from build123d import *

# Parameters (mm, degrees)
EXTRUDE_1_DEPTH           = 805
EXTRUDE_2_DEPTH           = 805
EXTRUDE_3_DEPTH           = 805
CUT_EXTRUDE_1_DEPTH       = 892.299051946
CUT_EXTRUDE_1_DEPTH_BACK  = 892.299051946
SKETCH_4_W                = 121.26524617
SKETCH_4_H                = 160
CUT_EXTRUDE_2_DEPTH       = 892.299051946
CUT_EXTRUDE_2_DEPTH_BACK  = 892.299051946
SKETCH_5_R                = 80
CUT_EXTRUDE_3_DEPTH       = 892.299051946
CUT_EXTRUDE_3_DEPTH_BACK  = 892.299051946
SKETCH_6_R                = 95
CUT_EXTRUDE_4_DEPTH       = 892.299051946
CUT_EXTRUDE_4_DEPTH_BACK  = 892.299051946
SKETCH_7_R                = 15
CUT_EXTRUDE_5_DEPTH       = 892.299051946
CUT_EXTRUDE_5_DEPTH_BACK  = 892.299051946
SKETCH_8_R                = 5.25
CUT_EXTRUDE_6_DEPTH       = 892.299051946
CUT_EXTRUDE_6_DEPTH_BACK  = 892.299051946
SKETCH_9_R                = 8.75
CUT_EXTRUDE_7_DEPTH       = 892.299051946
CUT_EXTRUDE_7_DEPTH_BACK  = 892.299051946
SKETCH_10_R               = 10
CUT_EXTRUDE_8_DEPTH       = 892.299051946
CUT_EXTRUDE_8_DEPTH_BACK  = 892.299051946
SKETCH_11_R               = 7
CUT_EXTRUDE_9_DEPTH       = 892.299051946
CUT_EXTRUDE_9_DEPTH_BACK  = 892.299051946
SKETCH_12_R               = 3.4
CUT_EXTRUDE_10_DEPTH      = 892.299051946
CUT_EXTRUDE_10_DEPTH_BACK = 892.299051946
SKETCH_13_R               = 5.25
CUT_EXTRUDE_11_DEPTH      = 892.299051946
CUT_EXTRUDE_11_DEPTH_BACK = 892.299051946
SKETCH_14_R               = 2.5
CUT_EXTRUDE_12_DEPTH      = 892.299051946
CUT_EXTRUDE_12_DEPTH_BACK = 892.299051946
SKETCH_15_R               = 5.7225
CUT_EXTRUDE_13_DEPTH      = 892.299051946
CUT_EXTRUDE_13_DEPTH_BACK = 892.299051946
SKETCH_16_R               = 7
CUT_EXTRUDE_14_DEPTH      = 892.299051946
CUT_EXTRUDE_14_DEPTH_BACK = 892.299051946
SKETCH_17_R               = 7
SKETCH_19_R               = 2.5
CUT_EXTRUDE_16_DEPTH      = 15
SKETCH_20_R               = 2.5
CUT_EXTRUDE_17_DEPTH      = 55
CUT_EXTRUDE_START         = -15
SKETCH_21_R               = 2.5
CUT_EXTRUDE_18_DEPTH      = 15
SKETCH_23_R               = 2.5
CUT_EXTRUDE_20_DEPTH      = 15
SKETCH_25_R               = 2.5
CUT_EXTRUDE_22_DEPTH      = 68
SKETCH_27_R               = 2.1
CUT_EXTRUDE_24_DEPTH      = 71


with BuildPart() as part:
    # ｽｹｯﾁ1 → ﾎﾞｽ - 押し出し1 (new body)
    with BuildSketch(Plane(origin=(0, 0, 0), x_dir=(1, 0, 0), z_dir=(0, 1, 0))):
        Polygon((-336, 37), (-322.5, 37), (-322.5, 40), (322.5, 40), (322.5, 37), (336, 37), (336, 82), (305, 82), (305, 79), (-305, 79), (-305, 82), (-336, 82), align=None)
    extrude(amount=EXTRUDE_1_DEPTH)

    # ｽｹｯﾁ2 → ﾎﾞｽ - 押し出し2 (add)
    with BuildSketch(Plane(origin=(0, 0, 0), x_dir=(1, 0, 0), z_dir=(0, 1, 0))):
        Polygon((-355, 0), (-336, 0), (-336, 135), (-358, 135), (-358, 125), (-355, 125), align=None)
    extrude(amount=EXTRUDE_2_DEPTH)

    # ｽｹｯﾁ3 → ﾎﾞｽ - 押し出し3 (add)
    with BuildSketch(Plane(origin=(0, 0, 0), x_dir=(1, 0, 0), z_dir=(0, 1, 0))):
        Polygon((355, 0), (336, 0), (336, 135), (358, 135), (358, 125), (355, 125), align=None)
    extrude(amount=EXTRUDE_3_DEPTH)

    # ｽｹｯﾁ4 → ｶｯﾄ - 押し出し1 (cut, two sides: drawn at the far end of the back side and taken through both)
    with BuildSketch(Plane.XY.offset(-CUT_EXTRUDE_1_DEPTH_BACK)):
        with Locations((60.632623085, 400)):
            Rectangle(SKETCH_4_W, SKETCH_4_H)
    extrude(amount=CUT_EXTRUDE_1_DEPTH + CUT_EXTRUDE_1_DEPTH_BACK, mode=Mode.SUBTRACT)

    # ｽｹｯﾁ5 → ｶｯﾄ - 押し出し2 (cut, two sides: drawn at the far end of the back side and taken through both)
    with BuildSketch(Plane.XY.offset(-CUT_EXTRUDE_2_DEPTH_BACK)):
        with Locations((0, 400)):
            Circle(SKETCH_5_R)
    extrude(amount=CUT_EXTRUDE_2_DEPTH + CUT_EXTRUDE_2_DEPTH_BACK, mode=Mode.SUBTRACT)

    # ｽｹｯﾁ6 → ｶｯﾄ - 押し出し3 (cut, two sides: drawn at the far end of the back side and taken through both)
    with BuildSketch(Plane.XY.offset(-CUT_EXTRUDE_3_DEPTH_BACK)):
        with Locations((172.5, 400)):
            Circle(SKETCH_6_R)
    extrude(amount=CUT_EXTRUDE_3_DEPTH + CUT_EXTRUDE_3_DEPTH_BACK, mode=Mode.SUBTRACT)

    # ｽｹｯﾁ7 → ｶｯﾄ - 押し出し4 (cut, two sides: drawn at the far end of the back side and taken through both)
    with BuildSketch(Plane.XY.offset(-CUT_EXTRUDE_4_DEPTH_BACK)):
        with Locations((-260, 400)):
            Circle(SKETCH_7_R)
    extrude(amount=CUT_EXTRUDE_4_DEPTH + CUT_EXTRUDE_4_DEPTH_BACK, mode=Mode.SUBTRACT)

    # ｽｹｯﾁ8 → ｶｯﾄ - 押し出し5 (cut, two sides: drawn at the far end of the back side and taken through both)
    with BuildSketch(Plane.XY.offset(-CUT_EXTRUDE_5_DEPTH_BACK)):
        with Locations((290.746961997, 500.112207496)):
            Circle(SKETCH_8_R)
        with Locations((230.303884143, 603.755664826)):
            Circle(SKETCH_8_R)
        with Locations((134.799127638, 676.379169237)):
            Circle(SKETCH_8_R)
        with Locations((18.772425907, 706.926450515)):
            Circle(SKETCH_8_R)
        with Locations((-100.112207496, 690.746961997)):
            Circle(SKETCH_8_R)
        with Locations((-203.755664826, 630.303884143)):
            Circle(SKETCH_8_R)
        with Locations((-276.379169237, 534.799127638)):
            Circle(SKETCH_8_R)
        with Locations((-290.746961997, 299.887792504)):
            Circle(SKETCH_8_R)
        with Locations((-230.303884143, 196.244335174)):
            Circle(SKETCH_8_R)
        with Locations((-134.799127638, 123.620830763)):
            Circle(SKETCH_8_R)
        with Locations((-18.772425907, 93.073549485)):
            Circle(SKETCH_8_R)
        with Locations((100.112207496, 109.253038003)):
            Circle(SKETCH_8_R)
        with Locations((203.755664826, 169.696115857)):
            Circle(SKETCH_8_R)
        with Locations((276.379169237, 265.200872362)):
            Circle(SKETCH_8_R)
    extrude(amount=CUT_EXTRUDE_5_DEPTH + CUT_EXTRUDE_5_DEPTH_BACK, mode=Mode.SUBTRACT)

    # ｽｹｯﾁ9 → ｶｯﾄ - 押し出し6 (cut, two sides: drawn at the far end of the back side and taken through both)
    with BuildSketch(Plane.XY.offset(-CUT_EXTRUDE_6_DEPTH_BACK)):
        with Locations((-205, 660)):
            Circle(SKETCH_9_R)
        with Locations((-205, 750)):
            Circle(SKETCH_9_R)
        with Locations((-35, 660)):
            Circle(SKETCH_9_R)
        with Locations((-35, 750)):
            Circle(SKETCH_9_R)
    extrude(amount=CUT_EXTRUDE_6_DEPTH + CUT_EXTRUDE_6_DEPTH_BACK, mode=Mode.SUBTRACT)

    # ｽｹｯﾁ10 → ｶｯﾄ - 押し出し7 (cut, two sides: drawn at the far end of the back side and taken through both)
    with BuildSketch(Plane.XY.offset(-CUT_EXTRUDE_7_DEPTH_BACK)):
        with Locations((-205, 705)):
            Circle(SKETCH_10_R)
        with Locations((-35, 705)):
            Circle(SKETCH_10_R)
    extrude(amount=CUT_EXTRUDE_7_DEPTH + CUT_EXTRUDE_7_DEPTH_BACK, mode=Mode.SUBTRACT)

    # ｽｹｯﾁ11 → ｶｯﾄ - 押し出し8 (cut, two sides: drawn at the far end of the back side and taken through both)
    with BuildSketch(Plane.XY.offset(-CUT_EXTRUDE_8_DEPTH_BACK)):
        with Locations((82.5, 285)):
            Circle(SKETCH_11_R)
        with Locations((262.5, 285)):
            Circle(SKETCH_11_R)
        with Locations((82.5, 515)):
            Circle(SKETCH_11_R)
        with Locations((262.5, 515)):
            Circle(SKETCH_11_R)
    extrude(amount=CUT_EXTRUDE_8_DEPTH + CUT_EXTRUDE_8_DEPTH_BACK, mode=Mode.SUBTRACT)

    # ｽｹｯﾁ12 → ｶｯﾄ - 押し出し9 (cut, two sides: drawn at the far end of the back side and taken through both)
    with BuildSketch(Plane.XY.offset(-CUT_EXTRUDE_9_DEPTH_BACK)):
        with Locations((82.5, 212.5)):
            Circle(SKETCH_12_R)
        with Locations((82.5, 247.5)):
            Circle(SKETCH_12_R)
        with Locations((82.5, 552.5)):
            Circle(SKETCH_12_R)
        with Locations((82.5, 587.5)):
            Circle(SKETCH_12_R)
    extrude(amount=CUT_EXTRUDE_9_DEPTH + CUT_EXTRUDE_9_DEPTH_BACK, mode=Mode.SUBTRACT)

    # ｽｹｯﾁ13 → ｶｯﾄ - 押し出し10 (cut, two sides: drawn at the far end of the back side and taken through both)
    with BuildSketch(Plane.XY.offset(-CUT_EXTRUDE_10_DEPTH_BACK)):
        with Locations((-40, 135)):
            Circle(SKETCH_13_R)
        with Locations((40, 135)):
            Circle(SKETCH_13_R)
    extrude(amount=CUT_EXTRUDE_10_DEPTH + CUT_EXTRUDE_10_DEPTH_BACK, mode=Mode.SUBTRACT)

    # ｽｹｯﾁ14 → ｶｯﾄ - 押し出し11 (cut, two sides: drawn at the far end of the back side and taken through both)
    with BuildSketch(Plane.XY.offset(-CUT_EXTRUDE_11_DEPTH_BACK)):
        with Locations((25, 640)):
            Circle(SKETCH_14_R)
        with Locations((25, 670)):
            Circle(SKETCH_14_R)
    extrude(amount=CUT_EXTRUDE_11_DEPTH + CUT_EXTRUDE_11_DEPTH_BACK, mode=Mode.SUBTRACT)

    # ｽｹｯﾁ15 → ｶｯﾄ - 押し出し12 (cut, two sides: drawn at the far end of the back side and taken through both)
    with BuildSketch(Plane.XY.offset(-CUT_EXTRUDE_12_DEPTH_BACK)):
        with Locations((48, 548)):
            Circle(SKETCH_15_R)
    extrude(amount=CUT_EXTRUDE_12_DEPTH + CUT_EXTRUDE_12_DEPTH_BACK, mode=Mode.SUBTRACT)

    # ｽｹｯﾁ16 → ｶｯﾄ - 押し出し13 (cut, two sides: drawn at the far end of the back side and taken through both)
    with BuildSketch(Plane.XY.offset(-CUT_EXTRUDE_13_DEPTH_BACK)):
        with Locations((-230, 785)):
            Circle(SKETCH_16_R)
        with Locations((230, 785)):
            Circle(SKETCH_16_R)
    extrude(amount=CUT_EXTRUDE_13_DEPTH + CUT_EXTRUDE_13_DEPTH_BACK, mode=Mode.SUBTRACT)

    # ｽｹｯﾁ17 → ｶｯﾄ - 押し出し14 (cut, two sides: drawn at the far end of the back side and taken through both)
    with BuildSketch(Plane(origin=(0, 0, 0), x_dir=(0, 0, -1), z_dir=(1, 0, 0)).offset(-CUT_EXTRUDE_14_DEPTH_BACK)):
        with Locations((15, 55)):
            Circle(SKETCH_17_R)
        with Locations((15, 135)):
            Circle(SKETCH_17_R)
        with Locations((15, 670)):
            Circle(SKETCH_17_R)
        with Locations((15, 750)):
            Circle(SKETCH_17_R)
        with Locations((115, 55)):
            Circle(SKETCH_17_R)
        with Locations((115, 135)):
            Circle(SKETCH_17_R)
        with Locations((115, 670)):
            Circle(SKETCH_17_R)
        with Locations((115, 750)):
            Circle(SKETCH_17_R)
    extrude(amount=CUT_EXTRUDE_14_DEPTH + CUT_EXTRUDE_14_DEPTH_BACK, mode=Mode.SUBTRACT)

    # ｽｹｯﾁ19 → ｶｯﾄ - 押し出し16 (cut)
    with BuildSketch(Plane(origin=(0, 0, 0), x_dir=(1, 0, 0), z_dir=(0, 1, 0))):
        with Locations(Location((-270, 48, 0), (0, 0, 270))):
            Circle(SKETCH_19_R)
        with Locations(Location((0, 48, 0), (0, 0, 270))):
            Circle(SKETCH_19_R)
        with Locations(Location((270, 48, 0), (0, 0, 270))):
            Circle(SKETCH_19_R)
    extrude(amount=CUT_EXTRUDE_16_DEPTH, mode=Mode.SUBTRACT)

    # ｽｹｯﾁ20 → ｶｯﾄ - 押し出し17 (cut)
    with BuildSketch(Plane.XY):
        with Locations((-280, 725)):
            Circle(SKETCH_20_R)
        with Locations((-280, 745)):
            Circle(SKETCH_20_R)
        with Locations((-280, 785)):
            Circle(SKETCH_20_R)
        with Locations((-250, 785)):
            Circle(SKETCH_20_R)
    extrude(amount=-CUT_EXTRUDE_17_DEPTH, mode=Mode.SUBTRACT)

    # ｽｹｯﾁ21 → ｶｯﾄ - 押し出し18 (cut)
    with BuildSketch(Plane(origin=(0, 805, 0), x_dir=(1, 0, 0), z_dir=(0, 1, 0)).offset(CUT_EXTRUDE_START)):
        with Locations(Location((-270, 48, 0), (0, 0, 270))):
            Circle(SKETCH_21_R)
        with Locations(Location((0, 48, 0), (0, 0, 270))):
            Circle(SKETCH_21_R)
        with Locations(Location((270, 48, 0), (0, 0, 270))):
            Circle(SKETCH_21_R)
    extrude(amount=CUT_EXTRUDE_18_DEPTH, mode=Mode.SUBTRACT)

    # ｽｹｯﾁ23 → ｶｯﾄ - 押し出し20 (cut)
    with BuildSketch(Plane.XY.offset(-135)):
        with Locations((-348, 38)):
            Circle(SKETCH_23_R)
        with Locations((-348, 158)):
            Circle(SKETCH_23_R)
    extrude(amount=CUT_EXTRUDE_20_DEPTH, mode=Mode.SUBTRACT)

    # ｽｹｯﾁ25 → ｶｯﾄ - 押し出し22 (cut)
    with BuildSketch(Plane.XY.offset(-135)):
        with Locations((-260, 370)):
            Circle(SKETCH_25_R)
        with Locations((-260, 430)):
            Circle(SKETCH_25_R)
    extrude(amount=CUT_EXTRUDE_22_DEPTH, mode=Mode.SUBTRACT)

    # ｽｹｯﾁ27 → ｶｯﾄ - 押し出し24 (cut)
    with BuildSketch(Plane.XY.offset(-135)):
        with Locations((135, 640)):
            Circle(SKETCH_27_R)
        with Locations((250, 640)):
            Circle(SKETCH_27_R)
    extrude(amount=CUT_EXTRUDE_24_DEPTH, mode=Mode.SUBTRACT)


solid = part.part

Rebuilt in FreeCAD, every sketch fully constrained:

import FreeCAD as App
import Part
import Sketcher

V = App.Vector
Q = App.Units.Quantity

doc = App.newDocument("Part")
body = doc.addObject("PartDesign::Body", "Body")

sketch1 = body.newObject("Sketcher::SketchObject", "Sketch")
sketch1.AttachmentSupport = (doc.getObject("XZ_Plane"), [""])
sketch1.MapMode = "FlatFace"
sketch1.addGeometry([
    Part.LineSegment(V(-336, -37, 0), V(-322.5, -37, 0)),
    Part.LineSegment(V(-322.5, -37, 0), V(-322.5, -40, 0)),
    Part.LineSegment(V(-322.5, -40, 0), V(322.5, -40, 0)),
    Part.LineSegment(V(322.5, -40, 0), V(322.5, -37, 0)),
    Part.LineSegment(V(322.5, -37, 0), V(336, -37, 0)),
    Part.LineSegment(V(336, -37, 0), V(336, -82, 0)),
    Part.LineSegment(V(336, -82, 0), V(305, -82, 0)),
    Part.LineSegment(V(305, -82, 0), V(305, -79, 0)),
    Part.LineSegment(V(305, -79, 0), V(-305, -79, 0)),
    Part.LineSegment(V(-305, -79, 0), V(-305, -82, 0)),
    Part.LineSegment(V(-305, -82, 0), V(-336, -82, 0)),
    Part.LineSegment(V(-336, -82, 0), V(-336, -37, 0)),
], False)
sketch1.addConstraint([
    Sketcher.Constraint("Coincident", 0, 2, 1, 1),
    Sketcher.Constraint("Coincident", 1, 2, 2, 1),
    Sketcher.Constraint("Coincident", 2, 2, 3, 1),
    Sketcher.Constraint("Coincident", 3, 2, 4, 1),
    Sketcher.Constraint("Coincident", 4, 2, 5, 1),
    Sketcher.Constraint("Coincident", 5, 2, 6, 1),
    Sketcher.Constraint("Coincident", 6, 2, 7, 1),
    Sketcher.Constraint("Coincident", 7, 2, 8, 1),
    Sketcher.Constraint("Coincident", 8, 2, 9, 1),
    Sketcher.Constraint("Coincident", 9, 2, 10, 1),
    Sketcher.Constraint("Coincident", 10, 2, 11, 1),
    Sketcher.Constraint("Coincident", 11, 2, 0, 1),
    Sketcher.Constraint("Horizontal", 0),
    Sketcher.Constraint("Vertical", 1),
    Sketcher.Constraint("Horizontal", 2),
    Sketcher.Constraint("Vertical", 3),
    Sketcher.Constraint("Horizontal", 4),
    Sketcher.Constraint("Vertical", 5),
    Sketcher.Constraint("Horizontal", 6),
    Sketcher.Constraint("Vertical", 7),
    Sketcher.Constraint("Horizontal", 8),
    Sketcher.Constraint("Vertical", 9),
    Sketcher.Constraint("Horizontal", 10),
    Sketcher.Constraint("Vertical", 11),
    Sketcher.Constraint("Symmetric", 0, 2, 3, 2, -2),
    Sketcher.Constraint("Symmetric", 6, 2, 9, 2, -2),
    Sketcher.Constraint("Equal", 0, 4),
    Sketcher.Constraint("Equal", 3, 7),
    Sketcher.Constraint("DistanceX", 2, 1, 2, 2, Q("645 mm")),
    Sketcher.Constraint("DistanceX", 6, 2, 6, 1, Q("31 mm")),
    Sketcher.Constraint("DistanceX", 8, 2, 8, 1, Q("610 mm")),
    Sketcher.Constraint("DistanceY", 1, 2, 1, 1, Q("3 mm")),
    Sketcher.Constraint("DistanceY", 5, 2, 5, 1, Q("45 mm")),
    Sketcher.Constraint("DistanceY", 0, 2, -1, 1, Q("37 mm")),
])
pad1 = body.newObject("PartDesign::Pad", "Pad")
pad1.Profile = sketch1
pad1.Length = 805
pad1.Reversed = True

sketch2 = body.newObject("Sketcher::SketchObject", "Sketch001")
sketch2.AttachmentSupport = (doc.getObject("XZ_Plane"), [""])
sketch2.MapMode = "FlatFace"
sketch2.addGeometry([
    Part.LineSegment(V(-355, 0, 0), V(-336, 0, 0)),
    Part.LineSegment(V(-336, 0, 0), V(-336, -135, 0)),
    Part.LineSegment(V(-336, -135, 0), V(-358, -135, 0)),
    Part.LineSegment(V(-358, -135, 0), V(-358, -125, 0)),
    Part.LineSegment(V(-358, -125, 0), V(-355, -125, 0)),
    Part.LineSegment(V(-355, -125, 0), V(-355, 0, 0)),
], False)
sketch2.addConstraint([
    Sketcher.Constraint("Coincident", 0, 2, 1, 1),
    Sketcher.Constraint("Coincident", 1, 2, 2, 1),
    Sketcher.Constraint("Coincident", 2, 2, 3, 1),
    Sketcher.Constraint("Coincident", 3, 2, 4, 1),
    Sketcher.Constraint("Coincident", 4, 2, 5, 1),
    Sketcher.Constraint("Coincident", 5, 2, 0, 1),
    Sketcher.Constraint("Horizontal", 0),
    Sketcher.Constraint("Vertical", 1),
    Sketcher.Constraint("Horizontal", 2),
    Sketcher.Constraint("Vertical", 3),
    Sketcher.Constraint("Horizontal", 4),
    Sketcher.Constraint("Vertical", 5),
    Sketcher.Constraint("PointOnObject", 0, 2, -1),
    Sketcher.Constraint("DistanceX", 0, 1, 0, 2, Q("19 mm")),
    Sketcher.Constraint("DistanceX", 2, 2, 2, 1, Q("22 mm")),
    Sketcher.Constraint("DistanceY", 1, 2, 1, 1, Q("135 mm")),
    Sketcher.Constraint("DistanceY", 3, 1, 3, 2, Q("10 mm")),
    Sketcher.Constraint("DistanceX", 0, 2, -1, 1, Q("336 mm")),
])
pad2 = body.newObject("PartDesign::Pad", "Pad001")
pad2.Profile = sketch2
pad2.Length = 805
pad2.Reversed = True

sketch3 = body.newObject("Sketcher::SketchObject", "Sketch002")
sketch3.AttachmentSupport = (doc.getObject("XZ_Plane"), [""])
sketch3.MapMode = "FlatFace"
sketch3.addGeometry([
    Part.LineSegment(V(336, 0, 0), V(355, 0, 0)),
    Part.LineSegment(V(355, 0, 0), V(355, -125, 0)),
    Part.LineSegment(V(355, -125, 0), V(358, -125, 0)),
    Part.LineSegment(V(358, -125, 0), V(358, -135, 0)),
    Part.LineSegment(V(358, -135, 0), V(336, -135, 0)),
    Part.LineSegment(V(336, -135, 0), V(336, 0, 0)),
], False)
sketch3.addConstraint([
    Sketcher.Constraint("Coincident", 0, 2, 1, 1),
    Sketcher.Constraint("Coincident", 1, 2, 2, 1),
    Sketcher.Constraint("Coincident", 2, 2, 3, 1),
    Sketcher.Constraint("Coincident", 3, 2, 4, 1),
    Sketcher.Constraint("Coincident", 4, 2, 5, 1),
    Sketcher.Constraint("Coincident", 5, 2, 0, 1),
    Sketcher.Constraint("Horizontal", 0),
    Sketcher.Constraint("Vertical", 1),
    Sketcher.Constraint("Horizontal", 2),
    Sketcher.Constraint("Vertical", 3),
    Sketcher.Constraint("Horizontal", 4),
    Sketcher.Constraint("Vertical", 5),
    Sketcher.Constraint("PointOnObject", 0, 2, -1),
    Sketcher.Constraint("DistanceX", 0, 1, 0, 2, Q("19 mm")),
    Sketcher.Constraint("DistanceX", 2, 1, 2, 2, Q("3 mm")),
    Sketcher.Constraint("DistanceY", 1, 2, 1, 1, Q("125 mm")),
    Sketcher.Constraint("DistanceY", 3, 2, 3, 1, Q("10 mm")),
    Sketcher.Constraint("DistanceX", -1, 1, 0, 2, Q("355 mm")),
])
pad3 = body.newObject("PartDesign::Pad", "Pad002")
pad3.Profile = sketch3
pad3.Length = 805
pad3.Reversed = True

sketch4 = body.newObject("Sketcher::SketchObject", "Sketch003")
sketch4.AttachmentSupport = (doc.getObject("XY_Plane"), [""])
sketch4.MapMode = "FlatFace"
sketch4.addGeometry([
    Part.LineSegment(V(0, 480, 0), V(0, 320, 0)),
    Part.LineSegment(V(0, 320, 0), V(121.265246, 320, 0)),
    Part.LineSegment(V(121.265246, 320, 0), V(121.265246, 480, 0)),
    Part.LineSegment(V(121.265246, 480, 0), V(0, 480, 0)),
], False)
sketch4.addConstraint([
    Sketcher.Constraint("Coincident", 0, 2, 1, 1),
    Sketcher.Constraint("Coincident", 1, 2, 2, 1),
    Sketcher.Constraint("Coincident", 2, 2, 3, 1),
    Sketcher.Constraint("Coincident", 3, 2, 0, 1),
    Sketcher.Constraint("Vertical", 0),
    Sketcher.Constraint("Horizontal", 1),
    Sketcher.Constraint("Vertical", 2),
    Sketcher.Constraint("Horizontal", 3),
    Sketcher.Constraint("PointOnObject", 0, 2, -2),
    Sketcher.Constraint("DistanceY", 0, 2, 0, 1, Q("160 mm")),
    Sketcher.Constraint("DistanceY", -1, 1, 0, 2, Q("320 mm")),
    Sketcher.Constraint("DistanceX", 1, 1, 1, 2, Q("121.265246 mm")),
])
pocket1 = body.newObject("PartDesign::Pocket", "Pocket")
pocket1.Profile = sketch4
pocket1.Type = "ThroughAll"
pocket1.Midplane = True

sketch5 = body.newObject("Sketcher::SketchObject", "Sketch004")
sketch5.AttachmentSupport = (doc.getObject("XY_Plane"), [""])
sketch5.MapMode = "FlatFace"
sketch5.addGeometry(Part.Circle(V(0, 400, 0), V(0, 0, 1), 80), False)
sketch5.addConstraint([
    Sketcher.Constraint("PointOnObject", 0, 3, -2),
    Sketcher.Constraint("Diameter", 0, Q("160 mm")),
    Sketcher.Constraint("DistanceY", -1, 1, 0, 3, Q("400 mm")),
])
pocket2 = body.newObject("PartDesign::Pocket", "Pocket001")
pocket2.Profile = sketch5
pocket2.Type = "ThroughAll"
pocket2.Midplane = True

sketch6 = body.newObject("Sketcher::SketchObject", "Sketch005")
sketch6.AttachmentSupport = (doc.getObject("XY_Plane"), [""])
sketch6.MapMode = "FlatFace"
sketch6.addGeometry(Part.Circle(V(172.5, 400, 0), V(0, 0, 1), 95), False)
sketch6.addConstraint([
    Sketcher.Constraint("Diameter", 0, Q("190 mm")),
    Sketcher.Constraint("DistanceY", -1, 1, 0, 3, Q("400 mm")),
    Sketcher.Constraint("DistanceX", -1, 1, 0, 3, Q("172.5 mm")),
])
pocket3 = body.newObject("PartDesign::Pocket", "Pocket002")
pocket3.Profile = sketch6
pocket3.Type = "ThroughAll"
pocket3.Midplane = True

sketch7 = body.newObject("Sketcher::SketchObject", "Sketch006")
sketch7.AttachmentSupport = (doc.getObject("XY_Plane"), [""])
sketch7.MapMode = "FlatFace"
sketch7.addGeometry(Part.Circle(V(-260, 400, 0), V(0, 0, 1), 15), False)
sketch7.addConstraint([
    Sketcher.Constraint("Diameter", 0, Q("30 mm")),
    Sketcher.Constraint("DistanceX", 0, 3, -1, 1, Q("260 mm")),
    Sketcher.Constraint("DistanceY", -1, 1, 0, 3, Q("400 mm")),
])
pocket4 = body.newObject("PartDesign::Pocket", "Pocket003")
pocket4.Profile = sketch7
pocket4.Type = "ThroughAll"
pocket4.Midplane = True

sketch8 = body.newObject("Sketcher::SketchObject", "Sketch007")
sketch8.AttachmentSupport = (doc.getObject("XY_Plane"), [""])
sketch8.MapMode = "FlatFace"
sketch8.addGeometry([
    Part.Circle(V(290.746962, 500.112207, 0), V(0, 0, 1), 5.25),
    Part.Circle(V(230.303884, 603.755665, 0), V(0, 0, 1), 5.25),
    Part.Circle(V(134.799128, 676.379169, 0), V(0, 0, 1), 5.25),
    Part.Circle(V(18.772426, 706.926451, 0), V(0, 0, 1), 5.25),
    Part.Circle(V(-100.112207, 690.746962, 0), V(0, 0, 1), 5.25),
    Part.Circle(V(-203.755665, 630.303884, 0), V(0, 0, 1), 5.25),
    Part.Circle(V(-276.379169, 534.799128, 0), V(0, 0, 1), 5.25),
    Part.Circle(V(-290.746962, 299.887793, 0), V(0, 0, 1), 5.25),
    Part.Circle(V(-230.303884, 196.244335, 0), V(0, 0, 1), 5.25),
    Part.Circle(V(-134.799128, 123.620831, 0), V(0, 0, 1), 5.25),
    Part.Circle(V(-18.772426, 93.073549, 0), V(0, 0, 1), 5.25),
    Part.Circle(V(100.112207, 109.253038, 0), V(0, 0, 1), 5.25),
    Part.Circle(V(203.755665, 169.696116, 0), V(0, 0, 1), 5.25),
    Part.Circle(V(276.379169, 265.200872, 0), V(0, 0, 1), 5.25),
], False)
sketch8.addConstraint([
    Sketcher.Constraint("Equal", 0, 1),
    Sketcher.Constraint("Equal", 1, 2),
    Sketcher.Constraint("Equal", 2, 3),
    Sketcher.Constraint("Equal", 3, 4),
    Sketcher.Constraint("Equal", 4, 5),
    Sketcher.Constraint("Equal", 5, 6),
    Sketcher.Constraint("Equal", 6, 7),
    Sketcher.Constraint("Equal", 7, 8),
    Sketcher.Constraint("Equal", 8, 9),
    Sketcher.Constraint("Equal", 9, 10),
    Sketcher.Constraint("Equal", 10, 11),
    Sketcher.Constraint("Equal", 11, 12),
    Sketcher.Constraint("Equal", 12, 13),
    Sketcher.Constraint("Diameter", 0, Q("10.5 mm")),
    Sketcher.Constraint("DistanceX", 3, 3, 2, 3, Q("116.026702 mm")),
    Sketcher.Constraint("DistanceX", 9, 3, 10, 3, Q("116.026702 mm")),
    Sketcher.Constraint("DistanceX", -1, 1, 0, 3, Q("290.746962 mm")),
    Sketcher.Constraint("DistanceY", -1, 1, 2, 3, Q("676.379169 mm")),
    Sketcher.Constraint("DistanceY", -1, 1, 3, 3, Q("706.926451 mm")),
    Sketcher.Constraint("DistanceY", -1, 1, 4, 3, Q("690.746962 mm")),
    Sketcher.Constraint("DistanceX", 6, 3, -1, 1, Q("276.379169 mm")),
    Sketcher.Constraint("DistanceX", 7, 3, -1, 1, Q("290.746962 mm")),
    Sketcher.Constraint("DistanceY", -1, 1, 9, 3, Q("123.620831 mm")),
    Sketcher.Constraint("DistanceY", -1, 1, 10, 3, Q("93.073549 mm")),
    Sketcher.Constraint("DistanceY", -1, 1, 11, 3, Q("109.253038 mm")),
    Sketcher.Constraint("DistanceX", -1, 1, 13, 3, Q("276.379169 mm")),
    Sketcher.Constraint("DistanceY", 0, 3, 2, 3, Q("176.266962 mm")),
    Sketcher.Constraint("DistanceX", 3, 3, 1, 3, Q("211.531458 mm")),
    Sketcher.Constraint("DistanceX", 4, 3, 1, 3, Q("330.416092 mm")),
    Sketcher.Constraint("DistanceX", 4, 3, 0, 3, Q("390.859169 mm")),
    Sketcher.Constraint("DistanceX", 5, 3, 3, 3, Q("222.528091 mm")),
    Sketcher.Constraint("DistanceY", 1, 3, 5, 3, Q("26.548219 mm")),
    Sketcher.Constraint("DistanceY", 6, 3, 2, 3, Q("141.580042 mm")),
    Sketcher.Constraint("DistanceY", 7, 3, 5, 3, Q("330.416092 mm")),
    Sketcher.Constraint("DistanceY", 7, 3, 4, 3, Q("390.859169 mm")),
    Sketcher.Constraint("DistanceX", 8, 3, 5, 3, Q("26.548219 mm")),
    Sketcher.Constraint("DistanceY", 8, 3, 5, 3, Q("434.059549 mm")),
    Sketcher.Constraint("DistanceX", 6, 3, 9, 3, Q("141.580042 mm")),
    Sketcher.Constraint("DistanceX", 8, 3, 11, 3, Q("330.416092 mm")),
    Sketcher.Constraint("DistanceX", 10, 3, 12, 3, Q("222.528091 mm")),
    Sketcher.Constraint("DistanceY", 12, 3, 0, 3, Q("330.416092 mm")),
    Sketcher.Constraint("DistanceY", -1, 1, 13, 3, Q("265.200872 mm")),
])
pocket5 = body.newObject("PartDesign::Pocket", "Pocket004")
pocket5.Profile = sketch8
pocket5.Type = "ThroughAll"
pocket5.Midplane = True

sketch9 = body.newObject("Sketcher::SketchObject", "Sketch008")
sketch9.AttachmentSupport = (doc.getObject("XY_Plane"), [""])
sketch9.MapMode = "FlatFace"
sketch9.addGeometry([
    Part.Circle(V(-205, 660, 0), V(0, 0, 1), 8.75),
    Part.Circle(V(-205, 750, 0), V(0, 0, 1), 8.75),
    Part.Circle(V(-35, 660, 0), V(0, 0, 1), 8.75),
    Part.Circle(V(-35, 750, 0), V(0, 0, 1), 8.75),
], False)
sketch9.addConstraint([
    Sketcher.Constraint("Equal", 0, 1),
    Sketcher.Constraint("Equal", 1, 2),
    Sketcher.Constraint("Equal", 2, 3),
    Sketcher.Constraint("Horizontal", 0, 3, 2, 3),
    Sketcher.Constraint("Horizontal", 1, 3, 3, 3),
    Sketcher.Constraint("Vertical", 0, 3, 1, 3),
    Sketcher.Constraint("Vertical", 2, 3, 3, 3),
    Sketcher.Constraint("Diameter", 0, Q("17.5 mm")),
    Sketcher.Constraint("DistanceX", 0, 3, -1, 1, Q("205 mm")),
    Sketcher.Constraint("DistanceY", -1, 1, 0, 3, Q("660 mm")),
    Sketcher.Constraint("DistanceY", -1, 1, 1, 3, Q("750 mm")),
    Sketcher.Constraint("DistanceX", 2, 3, -1, 1, Q("35 mm")),
])
pocket6 = body.newObject("PartDesign::Pocket", "Pocket005")
pocket6.Profile = sketch9
pocket6.Type = "ThroughAll"
pocket6.Midplane = True

sketch10 = body.newObject("Sketcher::SketchObject", "Sketch009")
sketch10.AttachmentSupport = (doc.getObject("XY_Plane"), [""])
sketch10.MapMode = "FlatFace"
sketch10.addGeometry([
    Part.Circle(V(-205, 705, 0), V(0, 0, 1), 10),
    Part.Circle(V(-35, 705, 0), V(0, 0, 1), 10),
], False)
sketch10.addConstraint([
    Sketcher.Constraint("Equal", 0, 1),
    Sketcher.Constraint("Horizontal", 0, 3, 1, 3),
    Sketcher.Constraint("Diameter", 0, Q("20 mm")),
    Sketcher.Constraint("DistanceX", 0, 3, -1, 1, Q("205 mm")),
    Sketcher.Constraint("DistanceY", -1, 1, 0, 3, Q("705 mm")),
    Sketcher.Constraint("DistanceX", 1, 3, -1, 1, Q("35 mm")),
])
pocket7 = body.newObject("PartDesign::Pocket", "Pocket006")
pocket7.Profile = sketch10
pocket7.Type = "ThroughAll"
pocket7.Midplane = True

sketch11 = body.newObject("Sketcher::SketchObject", "Sketch010")
sketch11.AttachmentSupport = (doc.getObject("XY_Plane"), [""])
sketch11.MapMode = "FlatFace"
sketch11.addGeometry([
    Part.Circle(V(82.5, 285, 0), V(0, 0, 1), 7),
    Part.Circle(V(262.5, 285, 0), V(0, 0, 1), 7),
    Part.Circle(V(82.5, 515, 0), V(0, 0, 1), 7),
    Part.Circle(V(262.5, 515, 0), V(0, 0, 1), 7),
], False)
sketch11.addConstraint([
    Sketcher.Constraint("Equal", 0, 1),
    Sketcher.Constraint("Equal", 1, 2),
    Sketcher.Constraint("Equal", 2, 3),
    Sketcher.Constraint("Horizontal", 0, 3, 1, 3),
    Sketcher.Constraint("Horizontal", 2, 3, 3, 3),
    Sketcher.Constraint("Vertical", 0, 3, 2, 3),
    Sketcher.Constraint("Vertical", 1, 3, 3, 3),
    Sketcher.Constraint("Diameter", 0, Q("14 mm")),
    Sketcher.Constraint("DistanceY", -1, 1, 0, 3, Q("285 mm")),
    Sketcher.Constraint("DistanceY", -1, 1, 2, 3, Q("515 mm")),
    Sketcher.Constraint("DistanceX", 0, 3, 1, 3, Q("180 mm")),
    Sketcher.Constraint("DistanceX", -1, 1, 0, 3, Q("82.5 mm")),
])
pocket8 = body.newObject("PartDesign::Pocket", "Pocket007")
pocket8.Profile = sketch11
pocket8.Type = "ThroughAll"
pocket8.Midplane = True

sketch12 = body.newObject("Sketcher::SketchObject", "Sketch011")
sketch12.AttachmentSupport = (doc.getObject("XY_Plane"), [""])
sketch12.MapMode = "FlatFace"
sketch12.addGeometry([
    Part.Circle(V(82.5, 212.5, 0), V(0, 0, 1), 3.4),
    Part.Circle(V(82.5, 247.5, 0), V(0, 0, 1), 3.4),
    Part.Circle(V(82.5, 552.5, 0), V(0, 0, 1), 3.4),
    Part.Circle(V(82.5, 587.5, 0), V(0, 0, 1), 3.4),
], False)
sketch12.addConstraint([
    Sketcher.Constraint("Equal", 0, 1),
    Sketcher.Constraint("Equal", 1, 2),
    Sketcher.Constraint("Equal", 2, 3),
    Sketcher.Constraint("Vertical", 0, 3, 1, 3),
    Sketcher.Constraint("Vertical", 1, 3, 2, 3),
    Sketcher.Constraint("Vertical", 2, 3, 3, 3),
    Sketcher.Constraint("Diameter", 0, Q("6.8 mm")),
    Sketcher.Constraint("DistanceY", 0, 3, 1, 3, Q("35 mm")),
    Sketcher.Constraint("DistanceY", 1, 3, 2, 3, Q("305 mm")),
    Sketcher.Constraint("DistanceY", 2, 3, 3, 3, Q("35 mm")),
    Sketcher.Constraint("DistanceX", -1, 1, 0, 3, Q("82.5 mm")),
    Sketcher.Constraint("DistanceY", -1, 1, 0, 3, Q("212.5 mm")),
])
pocket9 = body.newObject("PartDesign::Pocket", "Pocket008")
pocket9.Profile = sketch12
pocket9.Type = "ThroughAll"
pocket9.Midplane = True

sketch13 = body.newObject("Sketcher::SketchObject", "Sketch012")
sketch13.AttachmentSupport = (doc.getObject("XY_Plane"), [""])
sketch13.MapMode = "FlatFace"
sketch13.addGeometry([
    Part.Circle(V(-40, 135, 0), V(0, 0, 1), 5.25),
    Part.Circle(V(40, 135, 0), V(0, 0, 1), 5.25),
], False)
sketch13.addConstraint([
    Sketcher.Constraint("Equal", 0, 1),
    Sketcher.Constraint("Symmetric", 0, 3, 1, 3, -2),
    Sketcher.Constraint("Diameter", 0, Q("10.5 mm")),
    Sketcher.Constraint("DistanceX", 0, 3, -1, 1, Q("40 mm")),
    Sketcher.Constraint("DistanceY", -1, 1, 0, 3, Q("135 mm")),
])
pocket10 = body.newObject("PartDesign::Pocket", "Pocket009")
pocket10.Profile = sketch13
pocket10.Type = "ThroughAll"
pocket10.Midplane = True

sketch14 = body.newObject("Sketcher::SketchObject", "Sketch013")
sketch14.AttachmentSupport = (doc.getObject("XY_Plane"), [""])
sketch14.MapMode = "FlatFace"
sketch14.addGeometry([
    Part.Circle(V(25, 640, 0), V(0, 0, 1), 2.5),
    Part.Circle(V(25, 670, 0), V(0, 0, 1), 2.5),
], False)
sketch14.addConstraint([
    Sketcher.Constraint("Equal", 0, 1),
    Sketcher.Constraint("Vertical", 0, 3, 1, 3),
    Sketcher.Constraint("Diameter", 0, Q("5 mm")),
    Sketcher.Constraint("DistanceX", -1, 1, 0, 3, Q("25 mm")),
    Sketcher.Constraint("DistanceY", -1, 1, 0, 3, Q("640 mm")),
    Sketcher.Constraint("DistanceY", -1, 1, 1, 3, Q("670 mm")),
])
pocket11 = body.newObject("PartDesign::Pocket", "Pocket010")
pocket11.Profile = sketch14
pocket11.Type = "ThroughAll"
pocket11.Midplane = True

sketch15 = body.newObject("Sketcher::SketchObject", "Sketch014")
sketch15.AttachmentSupport = (doc.getObject("XY_Plane"), [""])
sketch15.MapMode = "FlatFace"
sketch15.addGeometry(Part.Circle(V(48, 548, 0), V(0, 0, 1), 5.7225), False)
sketch15.addConstraint([
    Sketcher.Constraint("Diameter", 0, Q("11.445 mm")),
    Sketcher.Constraint("DistanceX", -1, 1, 0, 3, Q("48 mm")),
    Sketcher.Constraint("DistanceY", -1, 1, 0, 3, Q("548 mm")),
])
pocket12 = body.newObject("PartDesign::Pocket", "Pocket011")
pocket12.Profile = sketch15
pocket12.Type = "ThroughAll"
pocket12.Midplane = True

sketch16 = body.newObject("Sketcher::SketchObject", "Sketch015")
sketch16.AttachmentSupport = (doc.getObject("XY_Plane"), [""])
sketch16.MapMode = "FlatFace"
sketch16.addGeometry([
    Part.Circle(V(-230, 785, 0), V(0, 0, 1), 7),
    Part.Circle(V(230, 785, 0), V(0, 0, 1), 7),
], False)
sketch16.addConstraint([
    Sketcher.Constraint("Equal", 0, 1),
    Sketcher.Constraint("Symmetric", 0, 3, 1, 3, -2),
    Sketcher.Constraint("Diameter", 0, Q("14 mm")),
    Sketcher.Constraint("DistanceX", 0, 3, -1, 1, Q("230 mm")),
    Sketcher.Constraint("DistanceY", -1, 1, 0, 3, Q("785 mm")),
])
pocket13 = body.newObject("PartDesign::Pocket", "Pocket012")
pocket13.Profile = sketch16
pocket13.Type = "ThroughAll"
pocket13.Midplane = True

sketch17 = body.newObject("Sketcher::SketchObject", "Sketch016")
sketch17.AttachmentSupport = (doc.getObject("YZ_Plane"), [""])
sketch17.MapMode = "FlatFace"
sketch17.addGeometry([
    Part.Circle(V(55, -15, 0), V(0, 0, 1), 7),
    Part.Circle(V(135, -15, 0), V(0, 0, 1), 7),
    Part.Circle(V(670, -15, 0), V(0, 0, 1), 7),
    Part.Circle(V(750, -15, 0), V(0, 0, 1), 7),
    Part.Circle(V(55, -115, 0), V(0, 0, 1), 7),
    Part.Circle(V(135, -115, 0), V(0, 0, 1), 7),
    Part.Circle(V(670, -115, 0), V(0, 0, 1), 7),
    Part.Circle(V(750, -115, 0), V(0, 0, 1), 7),
], False)
sketch17.addConstraint([
    Sketcher.Constraint("Equal", 0, 1),
    Sketcher.Constraint("Equal", 1, 2),
    Sketcher.Constraint("Equal", 2, 3),
    Sketcher.Constraint("Equal", 3, 4),
    Sketcher.Constraint("Equal", 4, 5),
    Sketcher.Constraint("Equal", 5, 6),
    Sketcher.Constraint("Equal", 6, 7),
    Sketcher.Constraint("Horizontal", 0, 3, 1, 3),
    Sketcher.Constraint("Horizontal", 1, 3, 2, 3),
    Sketcher.Constraint("Horizontal", 2, 3, 3, 3),
    Sketcher.Constraint("Horizontal", 4, 3, 5, 3),
    Sketcher.Constraint("Horizontal", 5, 3, 6, 3),
    Sketcher.Constraint("Horizontal", 6, 3, 7, 3),
    Sketcher.Constraint("Vertical", 0, 3, 4, 3),
    Sketcher.Constraint("Vertical", 1, 3, 5, 3),
    Sketcher.Constraint("Vertical", 2, 3, 6, 3),
    Sketcher.Constraint("Vertical", 3, 3, 7, 3),
    Sketcher.Constraint("Diameter", 0, Q("14 mm")),
    Sketcher.Constraint("DistanceX", -1, 1, 0, 3, Q("55 mm")),
    Sketcher.Constraint("DistanceY", 0, 3, -1, 1, Q("15 mm")),
    Sketcher.Constraint("DistanceX", -1, 1, 1, 3, Q("135 mm")),
    Sketcher.Constraint("DistanceX", -1, 1, 2, 3, Q("670 mm")),
    Sketcher.Constraint("DistanceX", -1, 1, 3, 3, Q("750 mm")),
    Sketcher.Constraint("DistanceY", 4, 3, -1, 1, Q("115 mm")),
])
pocket14 = body.newObject("PartDesign::Pocket", "Pocket013")
pocket14.Profile = sketch17
pocket14.Type = "ThroughAll"
pocket14.Midplane = True

sketch18 = body.newObject("Sketcher::SketchObject", "Sketch017")
sketch18.AttachmentSupport = (doc.getObject("XZ_Plane"), [""])
sketch18.MapMode = "FlatFace"
sketch18.addGeometry([
    Part.Circle(V(-270, -48, 0), V(0, 0, 1), 2.5),
    Part.Circle(V(0, -48, 0), V(0, 0, 1), 2.5),
    Part.Circle(V(270, -48, 0), V(0, 0, 1), 2.5),
], False)
sketch18.addConstraint([
    Sketcher.Constraint("Equal", 0, 1),
    Sketcher.Constraint("Equal", 1, 2),
    Sketcher.Constraint("Symmetric", 0, 3, 2, 3, -2),
    Sketcher.Constraint("PointOnObject", 1, 3, -2),
    Sketcher.Constraint("Horizontal", 0, 3, 1, 3),
    Sketcher.Constraint("Diameter", 0, Q("5 mm")),
    Sketcher.Constraint("DistanceX", 0, 3, -1, 1, Q("270 mm")),
    Sketcher.Constraint("DistanceY", 0, 3, -1, 1, Q("48 mm")),
])
pocket15 = body.newObject("PartDesign::Pocket", "Pocket014")
pocket15.Profile = sketch18
pocket15.Length = 15

sketch19 = body.newObject("Sketcher::SketchObject", "Sketch018")
sketch19.AttachmentSupport = (doc.getObject("XY_Plane"), [""])
sketch19.MapMode = "FlatFace"
sketch19.addGeometry([
    Part.Circle(V(-280, 725, 0), V(0, 0, 1), 2.5),
    Part.Circle(V(-280, 745, 0), V(0, 0, 1), 2.5),
    Part.Circle(V(-280, 785, 0), V(0, 0, 1), 2.5),
    Part.Circle(V(-250, 785, 0), V(0, 0, 1), 2.5),
], False)
sketch19.addConstraint([
    Sketcher.Constraint("Equal", 0, 1),
    Sketcher.Constraint("Equal", 1, 2),
    Sketcher.Constraint("Equal", 2, 3),
    Sketcher.Constraint("Horizontal", 2, 3, 3, 3),
    Sketcher.Constraint("Vertical", 0, 3, 1, 3),
    Sketcher.Constraint("Vertical", 1, 3, 2, 3),
    Sketcher.Constraint("Diameter", 0, Q("5 mm")),
    Sketcher.Constraint("DistanceX", 0, 3, -1, 1, Q("280 mm")),
    Sketcher.Constraint("DistanceY", -1, 1, 0, 3, Q("725 mm")),
    Sketcher.Constraint("DistanceY", -1, 1, 1, 3, Q("745 mm")),
    Sketcher.Constraint("DistanceY", -1, 1, 2, 3, Q("785 mm")),
    Sketcher.Constraint("DistanceX", 3, 3, -1, 1, Q("250 mm")),
])
pocket16 = body.newObject("PartDesign::Pocket", "Pocket015")
pocket16.Profile = sketch19
pocket16.Length = 55

sketch20 = body.newObject("Sketcher::SketchObject", "Sketch019")
sketch20.AttachmentSupport = (doc.getObject("XZ_Plane"), [""])
sketch20.MapMode = "FlatFace"
sketch20.AttachmentOffset = App.Placement(V(0, 0, -790), App.Rotation())
sketch20.addGeometry([
    Part.Circle(V(-270, -48, 0), V(0, 0, 1), 2.5),
    Part.Circle(V(0, -48, 0), V(0, 0, 1), 2.5),
    Part.Circle(V(270, -48, 0), V(0, 0, 1), 2.5),
], False)
sketch20.addConstraint([
    Sketcher.Constraint("Equal", 0, 1),
    Sketcher.Constraint("Equal", 1, 2),
    Sketcher.Constraint("Symmetric", 0, 3, 2, 3, -2),
    Sketcher.Constraint("PointOnObject", 1, 3, -2),
    Sketcher.Constraint("Horizontal", 0, 3, 1, 3),
    Sketcher.Constraint("Diameter", 0, Q("5 mm")),
    Sketcher.Constraint("DistanceX", 0, 3, -1, 1, Q("270 mm")),
    Sketcher.Constraint("DistanceY", 0, 3, -1, 1, Q("48 mm")),
])
pocket17 = body.newObject("PartDesign::Pocket", "Pocket016")
pocket17.Profile = sketch20
pocket17.Length = 15

sketch21 = body.newObject("Sketcher::SketchObject", "Sketch020")
sketch21.AttachmentSupport = (doc.getObject("XY_Plane"), [""])
sketch21.MapMode = "FlatFace"
sketch21.AttachmentOffset = App.Placement(V(0, 0, -135), App.Rotation())
sketch21.addGeometry([
    Part.Circle(V(-348, 38, 0), V(0, 0, 1), 2.5),
    Part.Circle(V(-348, 158, 0), V(0, 0, 1), 2.5),
], False)
sketch21.addConstraint([
    Sketcher.Constraint("Equal", 0, 1),
    Sketcher.Constraint("Vertical", 0, 3, 1, 3),
    Sketcher.Constraint("Diameter", 0, Q("5 mm")),
    Sketcher.Constraint("DistanceX", 0, 3, -1, 1, Q("348 mm")),
    Sketcher.Constraint("DistanceY", -1, 1, 0, 3, Q("38 mm")),
    Sketcher.Constraint("DistanceY", -1, 1, 1, 3, Q("158 mm")),
])
pocket18 = body.newObject("PartDesign::Pocket", "Pocket017")
pocket18.Profile = sketch21
pocket18.Length = 15
pocket18.Reversed = True

sketch22 = body.newObject("Sketcher::SketchObject", "Sketch021")
sketch22.AttachmentSupport = (doc.getObject("XY_Plane"), [""])
sketch22.MapMode = "FlatFace"
sketch22.AttachmentOffset = App.Placement(V(0, 0, -135), App.Rotation())
sketch22.addGeometry([
    Part.Circle(V(-260, 370, 0), V(0, 0, 1), 2.5),
    Part.Circle(V(-260, 430, 0), V(0, 0, 1), 2.5),
], False)
sketch22.addConstraint([
    Sketcher.Constraint("Equal", 0, 1),
    Sketcher.Constraint("Vertical", 0, 3, 1, 3),
    Sketcher.Constraint("Diameter", 0, Q("5 mm")),
    Sketcher.Constraint("DistanceX", 0, 3, -1, 1, Q("260 mm")),
    Sketcher.Constraint("DistanceY", -1, 1, 0, 3, Q("370 mm")),
    Sketcher.Constraint("DistanceY", -1, 1, 1, 3, Q("430 mm")),
])
pocket19 = body.newObject("PartDesign::Pocket", "Pocket018")
pocket19.Profile = sketch22
pocket19.Length = 68
pocket19.Reversed = True

sketch23 = body.newObject("Sketcher::SketchObject", "Sketch022")
sketch23.AttachmentSupport = (doc.getObject("XY_Plane"), [""])
sketch23.MapMode = "FlatFace"
sketch23.AttachmentOffset = App.Placement(V(0, 0, -135), App.Rotation())
sketch23.addGeometry([
    Part.Circle(V(135, 640, 0), V(0, 0, 1), 2.1),
    Part.Circle(V(250, 640, 0), V(0, 0, 1), 2.1),
], False)
sketch23.addConstraint([
    Sketcher.Constraint("Equal", 0, 1),
    Sketcher.Constraint("Horizontal", 0, 3, 1, 3),
    Sketcher.Constraint("Diameter", 0, Q("4.2 mm")),
    Sketcher.Constraint("DistanceX", -1, 1, 0, 3, Q("135 mm")),
    Sketcher.Constraint("DistanceY", -1, 1, 0, 3, Q("640 mm")),
    Sketcher.Constraint("DistanceX", -1, 1, 1, 3, Q("250 mm")),
])
pocket20 = body.newObject("PartDesign::Pocket", "Pocket019")
pocket20.Profile = sketch23
pocket20.Length = 71
pocket20.Reversed = True

doc.recompute()
